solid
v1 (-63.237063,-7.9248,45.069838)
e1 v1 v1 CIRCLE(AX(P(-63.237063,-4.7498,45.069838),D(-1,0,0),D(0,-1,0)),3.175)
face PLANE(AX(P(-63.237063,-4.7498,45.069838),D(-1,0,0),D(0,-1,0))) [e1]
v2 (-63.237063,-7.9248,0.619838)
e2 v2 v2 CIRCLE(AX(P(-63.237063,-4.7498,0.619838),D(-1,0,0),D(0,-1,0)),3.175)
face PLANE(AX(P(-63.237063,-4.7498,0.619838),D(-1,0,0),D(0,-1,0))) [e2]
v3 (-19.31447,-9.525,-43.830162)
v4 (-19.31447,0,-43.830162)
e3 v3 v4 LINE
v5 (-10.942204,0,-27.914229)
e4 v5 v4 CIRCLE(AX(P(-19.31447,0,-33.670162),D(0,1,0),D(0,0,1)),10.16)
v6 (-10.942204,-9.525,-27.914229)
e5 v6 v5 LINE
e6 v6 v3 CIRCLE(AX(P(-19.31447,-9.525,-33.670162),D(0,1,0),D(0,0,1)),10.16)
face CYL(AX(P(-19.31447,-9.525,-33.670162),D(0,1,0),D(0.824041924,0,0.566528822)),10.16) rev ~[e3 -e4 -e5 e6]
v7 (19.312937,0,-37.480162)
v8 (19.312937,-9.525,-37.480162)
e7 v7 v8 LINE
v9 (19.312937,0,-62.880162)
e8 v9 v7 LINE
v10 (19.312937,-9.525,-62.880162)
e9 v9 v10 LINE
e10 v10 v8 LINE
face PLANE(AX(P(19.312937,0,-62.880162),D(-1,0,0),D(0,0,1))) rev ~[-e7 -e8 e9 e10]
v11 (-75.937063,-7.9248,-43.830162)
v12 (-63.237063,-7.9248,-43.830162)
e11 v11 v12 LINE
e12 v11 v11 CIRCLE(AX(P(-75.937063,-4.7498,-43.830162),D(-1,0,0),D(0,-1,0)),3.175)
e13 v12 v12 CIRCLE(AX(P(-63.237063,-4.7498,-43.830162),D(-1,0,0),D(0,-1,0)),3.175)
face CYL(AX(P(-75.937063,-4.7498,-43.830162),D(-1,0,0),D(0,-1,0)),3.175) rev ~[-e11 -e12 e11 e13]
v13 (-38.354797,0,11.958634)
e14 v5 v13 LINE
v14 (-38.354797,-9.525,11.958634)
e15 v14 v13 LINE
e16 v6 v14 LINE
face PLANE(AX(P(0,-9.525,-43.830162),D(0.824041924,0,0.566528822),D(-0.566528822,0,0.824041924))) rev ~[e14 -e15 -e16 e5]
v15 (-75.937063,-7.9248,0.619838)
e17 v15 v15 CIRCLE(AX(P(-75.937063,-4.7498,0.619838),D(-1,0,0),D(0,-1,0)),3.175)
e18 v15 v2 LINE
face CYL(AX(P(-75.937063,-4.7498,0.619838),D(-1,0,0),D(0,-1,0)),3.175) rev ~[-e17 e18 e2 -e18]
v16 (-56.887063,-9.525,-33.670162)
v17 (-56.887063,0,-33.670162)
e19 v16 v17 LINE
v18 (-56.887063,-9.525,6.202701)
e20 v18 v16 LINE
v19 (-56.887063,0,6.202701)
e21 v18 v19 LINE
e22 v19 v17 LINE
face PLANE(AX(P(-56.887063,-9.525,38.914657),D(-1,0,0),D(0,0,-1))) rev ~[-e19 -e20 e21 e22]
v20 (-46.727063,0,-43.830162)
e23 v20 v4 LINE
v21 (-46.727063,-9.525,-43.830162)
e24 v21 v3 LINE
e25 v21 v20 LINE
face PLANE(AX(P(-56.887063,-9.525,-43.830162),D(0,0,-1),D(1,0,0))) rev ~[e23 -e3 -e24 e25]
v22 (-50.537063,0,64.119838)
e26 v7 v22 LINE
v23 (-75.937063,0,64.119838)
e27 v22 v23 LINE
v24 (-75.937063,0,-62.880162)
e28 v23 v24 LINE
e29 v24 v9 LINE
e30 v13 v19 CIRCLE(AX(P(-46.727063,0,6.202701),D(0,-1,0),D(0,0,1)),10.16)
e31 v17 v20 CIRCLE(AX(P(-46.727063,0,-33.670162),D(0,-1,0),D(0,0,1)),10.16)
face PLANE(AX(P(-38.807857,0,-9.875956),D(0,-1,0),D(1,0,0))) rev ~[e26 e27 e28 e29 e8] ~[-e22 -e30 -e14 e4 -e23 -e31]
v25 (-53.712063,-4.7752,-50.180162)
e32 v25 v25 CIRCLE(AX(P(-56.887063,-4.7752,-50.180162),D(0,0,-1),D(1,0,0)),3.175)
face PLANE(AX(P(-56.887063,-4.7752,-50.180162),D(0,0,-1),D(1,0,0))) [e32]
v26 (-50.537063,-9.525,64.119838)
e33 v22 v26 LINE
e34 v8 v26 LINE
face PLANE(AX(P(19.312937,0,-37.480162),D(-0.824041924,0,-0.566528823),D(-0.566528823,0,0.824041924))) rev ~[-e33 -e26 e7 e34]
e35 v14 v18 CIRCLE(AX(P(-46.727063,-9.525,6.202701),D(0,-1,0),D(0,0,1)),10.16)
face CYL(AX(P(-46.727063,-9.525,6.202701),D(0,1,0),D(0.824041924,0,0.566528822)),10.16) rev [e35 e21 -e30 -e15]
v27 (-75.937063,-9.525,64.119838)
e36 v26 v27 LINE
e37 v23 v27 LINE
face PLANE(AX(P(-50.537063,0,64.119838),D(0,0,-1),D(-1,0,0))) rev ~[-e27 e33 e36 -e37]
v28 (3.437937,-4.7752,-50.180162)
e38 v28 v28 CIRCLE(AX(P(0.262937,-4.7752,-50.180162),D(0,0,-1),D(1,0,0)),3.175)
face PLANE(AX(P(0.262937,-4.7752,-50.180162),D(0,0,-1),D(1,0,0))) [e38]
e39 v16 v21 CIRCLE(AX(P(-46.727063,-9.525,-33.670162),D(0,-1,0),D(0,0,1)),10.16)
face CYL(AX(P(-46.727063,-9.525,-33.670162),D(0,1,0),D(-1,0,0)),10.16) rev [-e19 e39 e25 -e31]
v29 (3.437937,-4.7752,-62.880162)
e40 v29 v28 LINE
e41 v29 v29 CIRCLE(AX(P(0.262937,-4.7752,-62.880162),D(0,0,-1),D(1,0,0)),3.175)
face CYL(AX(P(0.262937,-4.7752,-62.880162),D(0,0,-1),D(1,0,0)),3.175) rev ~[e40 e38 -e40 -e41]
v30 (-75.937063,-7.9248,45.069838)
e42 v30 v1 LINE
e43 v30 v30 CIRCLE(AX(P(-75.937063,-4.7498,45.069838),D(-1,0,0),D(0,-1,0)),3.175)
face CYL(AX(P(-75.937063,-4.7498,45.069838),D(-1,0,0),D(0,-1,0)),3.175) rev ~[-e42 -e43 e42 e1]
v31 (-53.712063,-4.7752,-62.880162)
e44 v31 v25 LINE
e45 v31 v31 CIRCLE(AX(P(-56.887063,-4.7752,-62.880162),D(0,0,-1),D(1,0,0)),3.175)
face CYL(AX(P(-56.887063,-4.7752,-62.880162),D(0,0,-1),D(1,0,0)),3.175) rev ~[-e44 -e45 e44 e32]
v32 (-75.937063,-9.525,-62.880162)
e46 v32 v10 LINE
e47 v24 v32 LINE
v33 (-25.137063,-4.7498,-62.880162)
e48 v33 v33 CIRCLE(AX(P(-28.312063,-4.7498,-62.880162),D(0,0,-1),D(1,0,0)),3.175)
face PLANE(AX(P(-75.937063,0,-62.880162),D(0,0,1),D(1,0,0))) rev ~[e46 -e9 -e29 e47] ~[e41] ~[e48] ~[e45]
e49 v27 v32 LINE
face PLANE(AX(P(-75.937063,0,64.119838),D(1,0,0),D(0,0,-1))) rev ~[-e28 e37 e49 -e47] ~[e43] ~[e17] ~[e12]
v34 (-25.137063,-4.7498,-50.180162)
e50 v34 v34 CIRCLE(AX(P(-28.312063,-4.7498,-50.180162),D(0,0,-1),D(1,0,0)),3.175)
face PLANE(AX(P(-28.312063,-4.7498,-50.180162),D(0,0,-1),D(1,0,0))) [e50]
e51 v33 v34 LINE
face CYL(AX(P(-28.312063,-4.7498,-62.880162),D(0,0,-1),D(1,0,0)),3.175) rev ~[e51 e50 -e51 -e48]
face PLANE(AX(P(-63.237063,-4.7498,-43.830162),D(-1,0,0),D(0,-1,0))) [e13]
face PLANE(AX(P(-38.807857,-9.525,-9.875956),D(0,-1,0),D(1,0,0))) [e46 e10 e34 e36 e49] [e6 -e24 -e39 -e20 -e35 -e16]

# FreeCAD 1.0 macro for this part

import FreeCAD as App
import Part
import Sketcher

V = App.Vector
Q = App.Units.Quantity


def edges_at(feature, points):
    """Names of the edges that pass closest to the given points."""
    edges = feature.Shape.Edges
    near = lambda p: min(range(len(edges)), key=lambda i: edges[i].distToShape(Part.Vertex(*p))[0])
    return sorted({f"Edge{near(p) + 1}" for p in points})


def add_polygon(sketch, points):
    """Adds a closed chain of lines whose ends are joined by coincident constraints."""
    first, n = sketch.GeometryCount, len(points)
    for a, b in zip(points, points[1:] + points[:1]):
        sketch.addGeometry(Part.LineSegment(App.Vector(*a, 0), App.Vector(*b, 0)), False)
    for i in range(n):
        sketch.addConstraint(Sketcher.Constraint("Coincident", first + i, 2, first + (i + 1) % n, 1))

doc = App.newDocument("Part")
params = doc.addObject("Spreadsheet::Sheet", "Params")
for row, (alias, value) in enumerate([
    ("sketch1_width", "1 in"),
    ("sketch1_height", "5 in"),
    ("sketch1_width2", "3.75 in"),
    ("pad1_length", "0.375 in"),
    ("fillet_radius", "0.4 in"),
    ("sketch3_diameter", "0.25 in"),
    ("pocket2_length", "0.5 in"),
    ("sketch4_diameter", "0.25 in"),
    ("pocket3_length", "0.5 in"),
], start=1):
    params.set(f"A{row}", alias)
    params.set(f"B{row}", "=" + value)
    params.setAlias(f"B{row}", alias)

body = doc.addObject("PartDesign::Body", "Body")

sketch1 = body.newObject("Sketcher::SketchObject", "Sketch")
sketch1.AttachmentSupport = (doc.getObject("XZ_Plane"), [""])
sketch1.MapMode = "FlatFace"
add_polygon(sketch1, [(-51, 64), (-76, 64), (-76, -63), (19, -63), (19, -37)])
sketch1.addConstraint([
    Sketcher.Constraint("Horizontal", 0),
    Sketcher.Constraint("Vertical", 1),
    Sketcher.Constraint("Horizontal", 2),
    Sketcher.Constraint("Vertical", 3),
    Sketcher.Constraint("Equal", 0, 3),
    Sketcher.Constraint("DistanceX", 0, 2, 0, 1, Q("1 in")),
    Sketcher.Constraint("DistanceY", 1, 2, 1, 1, Q("5 in")),
    Sketcher.Constraint("DistanceX", 2, 1, 2, 2, Q("3.75 in")),
    Sketcher.Constraint("DistanceY", -1, 1, 0, 2, Q("64.119838 mm")),
    Sketcher.Constraint("DistanceX", 0, 2, -1, 1, Q("75.937063 mm")),
])
sketch1.setExpression("Constraints[10]", "Params.sketch1_width")
sketch1.setExpression("Constraints[11]", "Params.sketch1_height")
sketch1.setExpression("Constraints[12]", "Params.sketch1_width2")
pad1 = body.newObject("PartDesign::Pad", "Pad")
pad1.Profile = sketch1
pad1.setExpression("Length", "Params.pad1_length")

sketch2 = body.newObject("Sketcher::SketchObject", "Sketch001")
sketch2.AttachmentSupport = (doc.getObject("XZ_Plane"), [""])
sketch2.MapMode = "FlatFace"
sketch2.AttachmentOffset = App.Placement(V(0, 0, 0.375 * 25.4), App.Rotation())
add_polygon(sketch2, [(0, -44), (-57, 39), (-57, -44)])
sketch2.addConstraint([
    Sketcher.Constraint("Vertical", 1),
    Sketcher.Constraint("Horizontal", 2),
    Sketcher.Constraint("PointOnObject", 2, 2, -2),
    Sketcher.Constraint("DistanceY", 1, 2, 1, 1, Q("82.744819 mm")),
    Sketcher.Constraint("Distance", 0, Q("100.413361 mm")),
    Sketcher.Constraint("DistanceY", -1, 1, 0, 2, Q("38.914657 mm")),
])
pocket1 = body.newObject("PartDesign::Pocket", "Pocket")
pocket1.Profile = sketch2
pocket1.Type = "ThroughAll"
doc.recompute()

fillet = body.newObject("PartDesign::Fillet", "Fillet")
fillet.Base = (pocket1, edges_at(pocket1, [(-56.887, -4.763, -43.83), (0, -4.763, -43.83), (-56.887, -4.763, 38.915)]))
fillet.setExpression("Radius", "Params.fillet_radius")

sketch3 = body.newObject("Sketcher::SketchObject", "Sketch002")
sketch3.AttachmentSupport = (doc.getObject("XY_Plane"), [""])
sketch3.MapMode = "FlatFace"
sketch3.AttachmentOffset = App.Placement(V(0, 0, -62.880162), App.Rotation())
sketch3.addGeometry([
    Part.Circle(V(-56.9, -4.8, 0), V(0, 0, 1), 3.2),
    Part.Circle(V(-28.3, -4.7, 0), V(0, 0, 1), 3.2),
    Part.Circle(V(0.3, -4.8, 0), V(0, 0, 1), 3.2),
], False)
sketch3.addConstraint([
    Sketcher.Constraint("Equal", 0, 1),
    Sketcher.Constraint("Equal", 1, 2),
    Sketcher.Constraint("Horizontal", 0, 3, 2, 3),
    Sketcher.Constraint("Diameter", 0, Q("0.25 in")),
    Sketcher.Constraint("DistanceX", 0, 3, 2, 3, Q("2.25 in")),
    Sketcher.Constraint("DistanceY", 0, 3, -1, 1, Q("0.188 in")),
    Sketcher.Constraint("DistanceY", 1, 3, -1, 1, Q("0.187 in")),
    Sketcher.Constraint("DistanceX", 0, 3, 1, 3, Q("1.125 in")),
    Sketcher.Constraint("DistanceX", 0, 3, -1, 1, Q("56.887063 mm")),
])
sketch3.setExpression("Constraints[3]", "Params.sketch3_diameter")
pocket2 = body.newObject("PartDesign::Pocket", "Pocket001")
pocket2.Profile = sketch3
pocket2.setExpression("Length", "Params.pocket2_length")
pocket2.Reversed = True

sketch4 = body.newObject("Sketcher::SketchObject", "Sketch003")
sketch4.AttachmentSupport = (doc.getObject("YZ_Plane"), [""])
sketch4.MapMode = "FlatFace"
sketch4.AttachmentOffset = App.Placement(V(0, 0, -75.937063), App.Rotation())
sketch4.addGeometry([
    Part.Circle(V(-4.7, 45.1, 0), V(0, 0, 1), 3.2),
    Part.Circle(V(-4.7, 0.6, 0), V(0, 0, 1), 3.2),
    Part.Circle(V(-4.7, -43.8, 0), V(0, 0, 1), 3.2),
], False)
sketch4.addConstraint([
    Sketcher.Constraint("Equal", 0, 1),
    Sketcher.Constraint("Equal", 1, 2),
    Sketcher.Constraint("Vertical", 0, 3, 1, 3),
    Sketcher.Constraint("Vertical", 1, 3, 2, 3),
    Sketcher.Constraint("Diameter", 0, Q("0.25 in")),
    Sketcher.Constraint("DistanceY", 2, 3, 0, 3, Q("3.5 in")),
    Sketcher.Constraint("DistanceY", 1, 3, 0, 3, Q("1.75 in")),
    Sketcher.Constraint("DistanceX", 0, 3, -1, 1, Q("0.187 in")),
    Sketcher.Constraint("DistanceY", -1, 1, 1, 3, Q("0.619838 mm")),
])
sketch4.setExpression("Constraints[4]", "Params.sketch4_diameter")
pocket3 = body.newObject("PartDesign::Pocket", "Pocket002")
pocket3.Profile = sketch4
pocket3.setExpression("Length", "Params.pocket3_length")
pocket3.Reversed = True

doc.recompute()
